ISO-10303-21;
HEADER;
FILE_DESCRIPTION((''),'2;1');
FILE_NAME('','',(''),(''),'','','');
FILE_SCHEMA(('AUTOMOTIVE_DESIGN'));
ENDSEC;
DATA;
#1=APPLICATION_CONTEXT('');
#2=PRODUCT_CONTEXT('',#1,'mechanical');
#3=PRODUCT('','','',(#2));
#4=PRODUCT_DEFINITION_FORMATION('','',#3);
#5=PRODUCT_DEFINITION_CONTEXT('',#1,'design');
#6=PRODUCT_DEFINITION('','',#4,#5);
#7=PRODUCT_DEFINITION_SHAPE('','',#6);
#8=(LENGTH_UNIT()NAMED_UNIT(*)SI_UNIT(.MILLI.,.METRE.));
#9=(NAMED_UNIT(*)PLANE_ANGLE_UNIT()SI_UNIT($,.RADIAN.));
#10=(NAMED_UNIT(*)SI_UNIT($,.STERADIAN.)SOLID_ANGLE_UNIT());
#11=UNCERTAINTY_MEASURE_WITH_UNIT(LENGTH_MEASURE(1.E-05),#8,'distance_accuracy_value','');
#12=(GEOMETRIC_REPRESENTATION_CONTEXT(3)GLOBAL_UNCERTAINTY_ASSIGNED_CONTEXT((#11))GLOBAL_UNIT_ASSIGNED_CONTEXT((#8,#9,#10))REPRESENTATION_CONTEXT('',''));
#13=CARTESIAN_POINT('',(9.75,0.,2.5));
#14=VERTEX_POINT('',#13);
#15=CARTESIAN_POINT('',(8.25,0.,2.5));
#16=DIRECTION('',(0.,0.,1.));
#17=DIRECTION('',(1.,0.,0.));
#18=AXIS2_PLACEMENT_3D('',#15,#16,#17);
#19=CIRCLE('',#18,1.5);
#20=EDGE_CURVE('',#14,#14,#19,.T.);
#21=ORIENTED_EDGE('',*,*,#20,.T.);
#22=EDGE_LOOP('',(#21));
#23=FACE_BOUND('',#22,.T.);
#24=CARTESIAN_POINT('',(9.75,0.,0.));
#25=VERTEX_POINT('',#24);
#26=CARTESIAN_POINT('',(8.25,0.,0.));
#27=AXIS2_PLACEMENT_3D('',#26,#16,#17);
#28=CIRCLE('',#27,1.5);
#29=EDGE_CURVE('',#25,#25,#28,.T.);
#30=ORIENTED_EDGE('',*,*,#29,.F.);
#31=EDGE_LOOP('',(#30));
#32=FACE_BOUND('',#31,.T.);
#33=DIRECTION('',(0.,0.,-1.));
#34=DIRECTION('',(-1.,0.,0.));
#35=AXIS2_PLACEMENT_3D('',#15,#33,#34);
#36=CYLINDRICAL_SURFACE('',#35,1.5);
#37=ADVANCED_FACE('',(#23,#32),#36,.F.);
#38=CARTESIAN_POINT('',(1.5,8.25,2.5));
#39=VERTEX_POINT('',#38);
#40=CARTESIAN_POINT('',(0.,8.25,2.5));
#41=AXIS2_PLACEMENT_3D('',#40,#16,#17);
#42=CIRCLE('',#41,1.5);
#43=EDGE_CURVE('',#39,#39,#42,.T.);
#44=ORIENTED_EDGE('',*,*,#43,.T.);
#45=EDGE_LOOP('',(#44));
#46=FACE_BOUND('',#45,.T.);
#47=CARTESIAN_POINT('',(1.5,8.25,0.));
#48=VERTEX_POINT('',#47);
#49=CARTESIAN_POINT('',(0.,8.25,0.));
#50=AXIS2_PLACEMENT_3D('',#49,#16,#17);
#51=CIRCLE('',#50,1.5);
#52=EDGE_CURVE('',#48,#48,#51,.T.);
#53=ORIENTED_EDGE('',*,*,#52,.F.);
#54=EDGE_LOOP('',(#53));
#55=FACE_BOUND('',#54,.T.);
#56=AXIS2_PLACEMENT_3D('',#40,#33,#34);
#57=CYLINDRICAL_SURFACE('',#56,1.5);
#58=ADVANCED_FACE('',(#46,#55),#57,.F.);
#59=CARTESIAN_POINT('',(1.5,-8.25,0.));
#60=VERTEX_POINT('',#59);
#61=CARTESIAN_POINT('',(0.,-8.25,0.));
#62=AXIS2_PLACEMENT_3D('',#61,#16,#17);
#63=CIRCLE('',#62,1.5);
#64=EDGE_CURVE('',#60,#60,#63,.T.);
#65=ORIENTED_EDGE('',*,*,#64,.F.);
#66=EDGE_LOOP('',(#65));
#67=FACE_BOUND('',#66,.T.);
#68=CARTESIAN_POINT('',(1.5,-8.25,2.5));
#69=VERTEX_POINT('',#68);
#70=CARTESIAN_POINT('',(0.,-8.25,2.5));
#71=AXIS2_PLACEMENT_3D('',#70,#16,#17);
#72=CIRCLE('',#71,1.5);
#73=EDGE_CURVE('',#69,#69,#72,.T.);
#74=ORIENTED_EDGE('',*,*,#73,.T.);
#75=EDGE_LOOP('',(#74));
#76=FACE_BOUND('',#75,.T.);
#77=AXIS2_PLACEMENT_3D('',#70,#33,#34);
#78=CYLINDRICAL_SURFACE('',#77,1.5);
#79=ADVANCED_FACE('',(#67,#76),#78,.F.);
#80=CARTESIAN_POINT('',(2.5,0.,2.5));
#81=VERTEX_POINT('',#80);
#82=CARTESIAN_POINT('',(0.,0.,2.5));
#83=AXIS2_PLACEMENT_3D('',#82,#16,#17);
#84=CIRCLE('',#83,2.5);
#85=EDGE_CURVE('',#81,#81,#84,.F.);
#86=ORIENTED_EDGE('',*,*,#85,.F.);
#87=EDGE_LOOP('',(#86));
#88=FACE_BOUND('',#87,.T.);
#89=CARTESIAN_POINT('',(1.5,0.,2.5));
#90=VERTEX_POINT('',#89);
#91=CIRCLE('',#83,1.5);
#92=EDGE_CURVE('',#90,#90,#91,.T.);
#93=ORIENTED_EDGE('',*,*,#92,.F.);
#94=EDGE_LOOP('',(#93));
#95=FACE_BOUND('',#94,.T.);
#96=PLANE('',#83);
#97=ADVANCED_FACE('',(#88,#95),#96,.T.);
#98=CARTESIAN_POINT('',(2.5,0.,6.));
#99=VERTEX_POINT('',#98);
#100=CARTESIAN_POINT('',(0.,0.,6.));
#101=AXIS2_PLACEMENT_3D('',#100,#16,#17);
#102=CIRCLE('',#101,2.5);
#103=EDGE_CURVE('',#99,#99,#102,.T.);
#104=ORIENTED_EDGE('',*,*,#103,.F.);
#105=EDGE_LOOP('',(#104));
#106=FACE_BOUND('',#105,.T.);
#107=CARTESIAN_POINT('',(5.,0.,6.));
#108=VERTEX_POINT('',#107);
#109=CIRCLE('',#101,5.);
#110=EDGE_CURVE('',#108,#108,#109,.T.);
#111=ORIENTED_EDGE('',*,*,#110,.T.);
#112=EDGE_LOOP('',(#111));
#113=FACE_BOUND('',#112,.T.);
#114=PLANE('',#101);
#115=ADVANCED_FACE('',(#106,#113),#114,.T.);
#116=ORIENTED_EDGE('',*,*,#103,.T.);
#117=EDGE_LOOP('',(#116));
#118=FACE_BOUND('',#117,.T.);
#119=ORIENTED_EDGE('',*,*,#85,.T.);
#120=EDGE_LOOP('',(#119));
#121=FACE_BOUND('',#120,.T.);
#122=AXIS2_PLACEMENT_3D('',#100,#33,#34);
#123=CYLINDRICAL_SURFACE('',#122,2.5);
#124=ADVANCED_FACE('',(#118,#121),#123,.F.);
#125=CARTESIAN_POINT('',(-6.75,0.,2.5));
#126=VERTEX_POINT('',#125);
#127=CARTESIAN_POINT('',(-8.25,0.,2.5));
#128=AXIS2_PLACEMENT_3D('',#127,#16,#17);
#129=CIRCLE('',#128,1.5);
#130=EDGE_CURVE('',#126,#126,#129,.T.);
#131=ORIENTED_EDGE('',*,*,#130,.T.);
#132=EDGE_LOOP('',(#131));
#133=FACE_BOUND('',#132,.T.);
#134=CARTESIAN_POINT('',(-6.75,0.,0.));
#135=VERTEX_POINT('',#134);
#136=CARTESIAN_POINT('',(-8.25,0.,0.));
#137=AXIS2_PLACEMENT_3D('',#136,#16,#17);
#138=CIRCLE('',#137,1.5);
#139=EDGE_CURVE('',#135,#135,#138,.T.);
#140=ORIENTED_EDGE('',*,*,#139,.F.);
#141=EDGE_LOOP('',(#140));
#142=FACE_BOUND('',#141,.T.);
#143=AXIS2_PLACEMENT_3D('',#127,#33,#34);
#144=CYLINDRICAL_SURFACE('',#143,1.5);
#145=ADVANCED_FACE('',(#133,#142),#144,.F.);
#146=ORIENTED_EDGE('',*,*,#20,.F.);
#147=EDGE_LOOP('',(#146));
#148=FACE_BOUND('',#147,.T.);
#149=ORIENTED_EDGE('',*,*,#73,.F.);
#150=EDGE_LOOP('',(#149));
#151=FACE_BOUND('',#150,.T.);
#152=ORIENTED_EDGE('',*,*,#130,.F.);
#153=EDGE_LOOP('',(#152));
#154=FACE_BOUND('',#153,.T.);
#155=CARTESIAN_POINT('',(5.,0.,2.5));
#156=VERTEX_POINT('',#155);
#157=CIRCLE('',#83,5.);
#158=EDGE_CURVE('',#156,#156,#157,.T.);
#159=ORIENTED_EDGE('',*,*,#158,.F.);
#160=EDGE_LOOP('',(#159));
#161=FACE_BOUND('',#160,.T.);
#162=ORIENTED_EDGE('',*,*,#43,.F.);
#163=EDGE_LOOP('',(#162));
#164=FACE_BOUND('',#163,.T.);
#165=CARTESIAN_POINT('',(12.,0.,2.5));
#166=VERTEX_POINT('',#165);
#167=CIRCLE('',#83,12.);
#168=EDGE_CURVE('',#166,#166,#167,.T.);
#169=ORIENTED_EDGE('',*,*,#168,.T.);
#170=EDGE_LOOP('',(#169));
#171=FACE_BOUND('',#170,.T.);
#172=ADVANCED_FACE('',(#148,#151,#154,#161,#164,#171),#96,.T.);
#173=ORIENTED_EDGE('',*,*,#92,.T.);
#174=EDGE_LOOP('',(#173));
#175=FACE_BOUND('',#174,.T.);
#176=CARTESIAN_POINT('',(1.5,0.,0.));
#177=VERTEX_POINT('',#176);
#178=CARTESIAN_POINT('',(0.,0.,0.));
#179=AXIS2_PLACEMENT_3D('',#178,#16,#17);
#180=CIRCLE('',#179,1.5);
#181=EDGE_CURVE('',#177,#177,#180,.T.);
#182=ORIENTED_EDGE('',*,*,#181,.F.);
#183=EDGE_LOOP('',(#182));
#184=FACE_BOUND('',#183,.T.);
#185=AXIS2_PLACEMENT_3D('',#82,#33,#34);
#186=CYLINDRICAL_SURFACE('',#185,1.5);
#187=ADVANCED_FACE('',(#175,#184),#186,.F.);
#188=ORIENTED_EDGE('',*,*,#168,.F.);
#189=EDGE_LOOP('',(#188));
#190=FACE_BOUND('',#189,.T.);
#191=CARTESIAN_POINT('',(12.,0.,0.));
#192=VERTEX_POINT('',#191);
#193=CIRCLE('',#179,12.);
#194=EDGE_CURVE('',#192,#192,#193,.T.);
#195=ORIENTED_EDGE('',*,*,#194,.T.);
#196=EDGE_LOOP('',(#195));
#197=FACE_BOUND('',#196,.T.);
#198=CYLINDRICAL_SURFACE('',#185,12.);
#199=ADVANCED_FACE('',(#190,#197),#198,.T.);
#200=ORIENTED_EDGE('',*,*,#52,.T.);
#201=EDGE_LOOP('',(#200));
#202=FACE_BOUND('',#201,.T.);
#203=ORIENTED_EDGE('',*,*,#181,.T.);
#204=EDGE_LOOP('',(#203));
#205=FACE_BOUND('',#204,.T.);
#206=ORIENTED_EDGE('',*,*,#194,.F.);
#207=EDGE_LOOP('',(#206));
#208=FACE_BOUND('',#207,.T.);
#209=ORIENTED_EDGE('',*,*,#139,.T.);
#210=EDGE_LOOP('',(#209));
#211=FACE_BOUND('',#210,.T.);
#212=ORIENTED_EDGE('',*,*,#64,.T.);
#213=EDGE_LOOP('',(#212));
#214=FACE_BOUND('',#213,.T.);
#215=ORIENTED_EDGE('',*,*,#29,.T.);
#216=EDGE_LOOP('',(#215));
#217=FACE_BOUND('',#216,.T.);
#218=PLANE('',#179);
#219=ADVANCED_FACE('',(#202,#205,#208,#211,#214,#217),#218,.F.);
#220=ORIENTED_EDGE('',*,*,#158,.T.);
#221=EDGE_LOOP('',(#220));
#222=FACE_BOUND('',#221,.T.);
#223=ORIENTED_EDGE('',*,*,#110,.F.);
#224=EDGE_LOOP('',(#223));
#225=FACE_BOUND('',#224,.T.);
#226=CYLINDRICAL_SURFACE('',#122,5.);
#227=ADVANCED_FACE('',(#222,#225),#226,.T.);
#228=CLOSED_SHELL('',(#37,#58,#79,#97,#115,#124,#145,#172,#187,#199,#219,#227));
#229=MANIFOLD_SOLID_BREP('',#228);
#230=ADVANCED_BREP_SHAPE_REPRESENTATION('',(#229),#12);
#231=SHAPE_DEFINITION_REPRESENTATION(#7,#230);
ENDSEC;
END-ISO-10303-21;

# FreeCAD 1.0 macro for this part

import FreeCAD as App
import Part
import Sketcher

doc = App.newDocument("Part")
body = doc.addObject("PartDesign::Body", "Body")

sketch1 = body.newObject("Sketcher::SketchObject", "Sketch")
sketch1.AttachmentSupport = (doc.getObject("XY_Plane"), [""])
sketch1.MapMode = "FlatFace"
sketch1.addGeometry([
    Part.Circle(App.Vector(0, 0, 0), App.Vector(0, 0, 1), 12),
    Part.Circle(App.Vector(0, -8.2, 0), App.Vector(0, 0, 1), 1.5),
    Part.Circle(App.Vector(-8.2, 0, 0), App.Vector(0, 0, 1), 1.5),
    Part.Circle(App.Vector(0, 0, 0), App.Vector(0, 0, 1), 1.5),
    Part.Circle(App.Vector(8.2, 0, 0), App.Vector(0, 0, 1), 1.5),
    Part.Circle(App.Vector(0, 8.2, 0), App.Vector(0, 0, 1), 1.5),
], False)
sketch1.addConstraint([
    Sketcher.Constraint("Coincident", 0, 3, -1, 1),
    Sketcher.Constraint("Coincident", 3, 3, -1, 1),
    Sketcher.Constraint("Equal", 1, 2),
    Sketcher.Constraint("Equal", 2, 3),
    Sketcher.Constraint("Equal", 3, 4),
    Sketcher.Constraint("Equal", 4, 5),
    Sketcher.Constraint("Symmetric", 2, 3, 4, 3, -1, 1),
    Sketcher.Constraint("Symmetric", 1, 3, 5, 3, -1, 1),
    Sketcher.Constraint("PointOnObject", 1, 3, -2),
    Sketcher.Constraint("PointOnObject", 2, 3, -1),
    Sketcher.Constraint("Diameter", 0, 24.0),
    Sketcher.Constraint("Diameter", 1, 3.0),
    Sketcher.Constraint("DistanceX", 2, 3, 4, 3, 16.5),
    Sketcher.Constraint("DistanceY", 1, 3, 5, 3, 16.5),
])
pad1 = body.newObject("PartDesign::Pad", "Pad")
pad1.Profile = sketch1
pad1.Length = 2.5

sketch2 = body.newObject("Sketcher::SketchObject", "Sketch001")
sketch2.AttachmentSupport = (doc.getObject("XY_Plane"), [""])
sketch2.MapMode = "FlatFace"
sketch2.AttachmentOffset = App.Placement(App.Vector(0, 0, 2.5), App.Rotation())
sketch2.addGeometry([
    Part.Circle(App.Vector(0, 0, 0), App.Vector(0, 0, 1), 5),
    Part.Circle(App.Vector(0, 0, 0), App.Vector(0, 0, 1), 2.5),
], False)
sketch2.addConstraint([
    Sketcher.Constraint("Coincident", 0, 3, -1, 1),
    Sketcher.Constraint("Coincident", 1, 3, -1, 1),
    Sketcher.Constraint("Diameter", 0, 10.0),
    Sketcher.Constraint("Diameter", 1, 5.0),
])
pad2 = body.newObject("PartDesign::Pad", "Pad001")
pad2.Profile = sketch2
pad2.Length = 3.5

doc.recompute()
